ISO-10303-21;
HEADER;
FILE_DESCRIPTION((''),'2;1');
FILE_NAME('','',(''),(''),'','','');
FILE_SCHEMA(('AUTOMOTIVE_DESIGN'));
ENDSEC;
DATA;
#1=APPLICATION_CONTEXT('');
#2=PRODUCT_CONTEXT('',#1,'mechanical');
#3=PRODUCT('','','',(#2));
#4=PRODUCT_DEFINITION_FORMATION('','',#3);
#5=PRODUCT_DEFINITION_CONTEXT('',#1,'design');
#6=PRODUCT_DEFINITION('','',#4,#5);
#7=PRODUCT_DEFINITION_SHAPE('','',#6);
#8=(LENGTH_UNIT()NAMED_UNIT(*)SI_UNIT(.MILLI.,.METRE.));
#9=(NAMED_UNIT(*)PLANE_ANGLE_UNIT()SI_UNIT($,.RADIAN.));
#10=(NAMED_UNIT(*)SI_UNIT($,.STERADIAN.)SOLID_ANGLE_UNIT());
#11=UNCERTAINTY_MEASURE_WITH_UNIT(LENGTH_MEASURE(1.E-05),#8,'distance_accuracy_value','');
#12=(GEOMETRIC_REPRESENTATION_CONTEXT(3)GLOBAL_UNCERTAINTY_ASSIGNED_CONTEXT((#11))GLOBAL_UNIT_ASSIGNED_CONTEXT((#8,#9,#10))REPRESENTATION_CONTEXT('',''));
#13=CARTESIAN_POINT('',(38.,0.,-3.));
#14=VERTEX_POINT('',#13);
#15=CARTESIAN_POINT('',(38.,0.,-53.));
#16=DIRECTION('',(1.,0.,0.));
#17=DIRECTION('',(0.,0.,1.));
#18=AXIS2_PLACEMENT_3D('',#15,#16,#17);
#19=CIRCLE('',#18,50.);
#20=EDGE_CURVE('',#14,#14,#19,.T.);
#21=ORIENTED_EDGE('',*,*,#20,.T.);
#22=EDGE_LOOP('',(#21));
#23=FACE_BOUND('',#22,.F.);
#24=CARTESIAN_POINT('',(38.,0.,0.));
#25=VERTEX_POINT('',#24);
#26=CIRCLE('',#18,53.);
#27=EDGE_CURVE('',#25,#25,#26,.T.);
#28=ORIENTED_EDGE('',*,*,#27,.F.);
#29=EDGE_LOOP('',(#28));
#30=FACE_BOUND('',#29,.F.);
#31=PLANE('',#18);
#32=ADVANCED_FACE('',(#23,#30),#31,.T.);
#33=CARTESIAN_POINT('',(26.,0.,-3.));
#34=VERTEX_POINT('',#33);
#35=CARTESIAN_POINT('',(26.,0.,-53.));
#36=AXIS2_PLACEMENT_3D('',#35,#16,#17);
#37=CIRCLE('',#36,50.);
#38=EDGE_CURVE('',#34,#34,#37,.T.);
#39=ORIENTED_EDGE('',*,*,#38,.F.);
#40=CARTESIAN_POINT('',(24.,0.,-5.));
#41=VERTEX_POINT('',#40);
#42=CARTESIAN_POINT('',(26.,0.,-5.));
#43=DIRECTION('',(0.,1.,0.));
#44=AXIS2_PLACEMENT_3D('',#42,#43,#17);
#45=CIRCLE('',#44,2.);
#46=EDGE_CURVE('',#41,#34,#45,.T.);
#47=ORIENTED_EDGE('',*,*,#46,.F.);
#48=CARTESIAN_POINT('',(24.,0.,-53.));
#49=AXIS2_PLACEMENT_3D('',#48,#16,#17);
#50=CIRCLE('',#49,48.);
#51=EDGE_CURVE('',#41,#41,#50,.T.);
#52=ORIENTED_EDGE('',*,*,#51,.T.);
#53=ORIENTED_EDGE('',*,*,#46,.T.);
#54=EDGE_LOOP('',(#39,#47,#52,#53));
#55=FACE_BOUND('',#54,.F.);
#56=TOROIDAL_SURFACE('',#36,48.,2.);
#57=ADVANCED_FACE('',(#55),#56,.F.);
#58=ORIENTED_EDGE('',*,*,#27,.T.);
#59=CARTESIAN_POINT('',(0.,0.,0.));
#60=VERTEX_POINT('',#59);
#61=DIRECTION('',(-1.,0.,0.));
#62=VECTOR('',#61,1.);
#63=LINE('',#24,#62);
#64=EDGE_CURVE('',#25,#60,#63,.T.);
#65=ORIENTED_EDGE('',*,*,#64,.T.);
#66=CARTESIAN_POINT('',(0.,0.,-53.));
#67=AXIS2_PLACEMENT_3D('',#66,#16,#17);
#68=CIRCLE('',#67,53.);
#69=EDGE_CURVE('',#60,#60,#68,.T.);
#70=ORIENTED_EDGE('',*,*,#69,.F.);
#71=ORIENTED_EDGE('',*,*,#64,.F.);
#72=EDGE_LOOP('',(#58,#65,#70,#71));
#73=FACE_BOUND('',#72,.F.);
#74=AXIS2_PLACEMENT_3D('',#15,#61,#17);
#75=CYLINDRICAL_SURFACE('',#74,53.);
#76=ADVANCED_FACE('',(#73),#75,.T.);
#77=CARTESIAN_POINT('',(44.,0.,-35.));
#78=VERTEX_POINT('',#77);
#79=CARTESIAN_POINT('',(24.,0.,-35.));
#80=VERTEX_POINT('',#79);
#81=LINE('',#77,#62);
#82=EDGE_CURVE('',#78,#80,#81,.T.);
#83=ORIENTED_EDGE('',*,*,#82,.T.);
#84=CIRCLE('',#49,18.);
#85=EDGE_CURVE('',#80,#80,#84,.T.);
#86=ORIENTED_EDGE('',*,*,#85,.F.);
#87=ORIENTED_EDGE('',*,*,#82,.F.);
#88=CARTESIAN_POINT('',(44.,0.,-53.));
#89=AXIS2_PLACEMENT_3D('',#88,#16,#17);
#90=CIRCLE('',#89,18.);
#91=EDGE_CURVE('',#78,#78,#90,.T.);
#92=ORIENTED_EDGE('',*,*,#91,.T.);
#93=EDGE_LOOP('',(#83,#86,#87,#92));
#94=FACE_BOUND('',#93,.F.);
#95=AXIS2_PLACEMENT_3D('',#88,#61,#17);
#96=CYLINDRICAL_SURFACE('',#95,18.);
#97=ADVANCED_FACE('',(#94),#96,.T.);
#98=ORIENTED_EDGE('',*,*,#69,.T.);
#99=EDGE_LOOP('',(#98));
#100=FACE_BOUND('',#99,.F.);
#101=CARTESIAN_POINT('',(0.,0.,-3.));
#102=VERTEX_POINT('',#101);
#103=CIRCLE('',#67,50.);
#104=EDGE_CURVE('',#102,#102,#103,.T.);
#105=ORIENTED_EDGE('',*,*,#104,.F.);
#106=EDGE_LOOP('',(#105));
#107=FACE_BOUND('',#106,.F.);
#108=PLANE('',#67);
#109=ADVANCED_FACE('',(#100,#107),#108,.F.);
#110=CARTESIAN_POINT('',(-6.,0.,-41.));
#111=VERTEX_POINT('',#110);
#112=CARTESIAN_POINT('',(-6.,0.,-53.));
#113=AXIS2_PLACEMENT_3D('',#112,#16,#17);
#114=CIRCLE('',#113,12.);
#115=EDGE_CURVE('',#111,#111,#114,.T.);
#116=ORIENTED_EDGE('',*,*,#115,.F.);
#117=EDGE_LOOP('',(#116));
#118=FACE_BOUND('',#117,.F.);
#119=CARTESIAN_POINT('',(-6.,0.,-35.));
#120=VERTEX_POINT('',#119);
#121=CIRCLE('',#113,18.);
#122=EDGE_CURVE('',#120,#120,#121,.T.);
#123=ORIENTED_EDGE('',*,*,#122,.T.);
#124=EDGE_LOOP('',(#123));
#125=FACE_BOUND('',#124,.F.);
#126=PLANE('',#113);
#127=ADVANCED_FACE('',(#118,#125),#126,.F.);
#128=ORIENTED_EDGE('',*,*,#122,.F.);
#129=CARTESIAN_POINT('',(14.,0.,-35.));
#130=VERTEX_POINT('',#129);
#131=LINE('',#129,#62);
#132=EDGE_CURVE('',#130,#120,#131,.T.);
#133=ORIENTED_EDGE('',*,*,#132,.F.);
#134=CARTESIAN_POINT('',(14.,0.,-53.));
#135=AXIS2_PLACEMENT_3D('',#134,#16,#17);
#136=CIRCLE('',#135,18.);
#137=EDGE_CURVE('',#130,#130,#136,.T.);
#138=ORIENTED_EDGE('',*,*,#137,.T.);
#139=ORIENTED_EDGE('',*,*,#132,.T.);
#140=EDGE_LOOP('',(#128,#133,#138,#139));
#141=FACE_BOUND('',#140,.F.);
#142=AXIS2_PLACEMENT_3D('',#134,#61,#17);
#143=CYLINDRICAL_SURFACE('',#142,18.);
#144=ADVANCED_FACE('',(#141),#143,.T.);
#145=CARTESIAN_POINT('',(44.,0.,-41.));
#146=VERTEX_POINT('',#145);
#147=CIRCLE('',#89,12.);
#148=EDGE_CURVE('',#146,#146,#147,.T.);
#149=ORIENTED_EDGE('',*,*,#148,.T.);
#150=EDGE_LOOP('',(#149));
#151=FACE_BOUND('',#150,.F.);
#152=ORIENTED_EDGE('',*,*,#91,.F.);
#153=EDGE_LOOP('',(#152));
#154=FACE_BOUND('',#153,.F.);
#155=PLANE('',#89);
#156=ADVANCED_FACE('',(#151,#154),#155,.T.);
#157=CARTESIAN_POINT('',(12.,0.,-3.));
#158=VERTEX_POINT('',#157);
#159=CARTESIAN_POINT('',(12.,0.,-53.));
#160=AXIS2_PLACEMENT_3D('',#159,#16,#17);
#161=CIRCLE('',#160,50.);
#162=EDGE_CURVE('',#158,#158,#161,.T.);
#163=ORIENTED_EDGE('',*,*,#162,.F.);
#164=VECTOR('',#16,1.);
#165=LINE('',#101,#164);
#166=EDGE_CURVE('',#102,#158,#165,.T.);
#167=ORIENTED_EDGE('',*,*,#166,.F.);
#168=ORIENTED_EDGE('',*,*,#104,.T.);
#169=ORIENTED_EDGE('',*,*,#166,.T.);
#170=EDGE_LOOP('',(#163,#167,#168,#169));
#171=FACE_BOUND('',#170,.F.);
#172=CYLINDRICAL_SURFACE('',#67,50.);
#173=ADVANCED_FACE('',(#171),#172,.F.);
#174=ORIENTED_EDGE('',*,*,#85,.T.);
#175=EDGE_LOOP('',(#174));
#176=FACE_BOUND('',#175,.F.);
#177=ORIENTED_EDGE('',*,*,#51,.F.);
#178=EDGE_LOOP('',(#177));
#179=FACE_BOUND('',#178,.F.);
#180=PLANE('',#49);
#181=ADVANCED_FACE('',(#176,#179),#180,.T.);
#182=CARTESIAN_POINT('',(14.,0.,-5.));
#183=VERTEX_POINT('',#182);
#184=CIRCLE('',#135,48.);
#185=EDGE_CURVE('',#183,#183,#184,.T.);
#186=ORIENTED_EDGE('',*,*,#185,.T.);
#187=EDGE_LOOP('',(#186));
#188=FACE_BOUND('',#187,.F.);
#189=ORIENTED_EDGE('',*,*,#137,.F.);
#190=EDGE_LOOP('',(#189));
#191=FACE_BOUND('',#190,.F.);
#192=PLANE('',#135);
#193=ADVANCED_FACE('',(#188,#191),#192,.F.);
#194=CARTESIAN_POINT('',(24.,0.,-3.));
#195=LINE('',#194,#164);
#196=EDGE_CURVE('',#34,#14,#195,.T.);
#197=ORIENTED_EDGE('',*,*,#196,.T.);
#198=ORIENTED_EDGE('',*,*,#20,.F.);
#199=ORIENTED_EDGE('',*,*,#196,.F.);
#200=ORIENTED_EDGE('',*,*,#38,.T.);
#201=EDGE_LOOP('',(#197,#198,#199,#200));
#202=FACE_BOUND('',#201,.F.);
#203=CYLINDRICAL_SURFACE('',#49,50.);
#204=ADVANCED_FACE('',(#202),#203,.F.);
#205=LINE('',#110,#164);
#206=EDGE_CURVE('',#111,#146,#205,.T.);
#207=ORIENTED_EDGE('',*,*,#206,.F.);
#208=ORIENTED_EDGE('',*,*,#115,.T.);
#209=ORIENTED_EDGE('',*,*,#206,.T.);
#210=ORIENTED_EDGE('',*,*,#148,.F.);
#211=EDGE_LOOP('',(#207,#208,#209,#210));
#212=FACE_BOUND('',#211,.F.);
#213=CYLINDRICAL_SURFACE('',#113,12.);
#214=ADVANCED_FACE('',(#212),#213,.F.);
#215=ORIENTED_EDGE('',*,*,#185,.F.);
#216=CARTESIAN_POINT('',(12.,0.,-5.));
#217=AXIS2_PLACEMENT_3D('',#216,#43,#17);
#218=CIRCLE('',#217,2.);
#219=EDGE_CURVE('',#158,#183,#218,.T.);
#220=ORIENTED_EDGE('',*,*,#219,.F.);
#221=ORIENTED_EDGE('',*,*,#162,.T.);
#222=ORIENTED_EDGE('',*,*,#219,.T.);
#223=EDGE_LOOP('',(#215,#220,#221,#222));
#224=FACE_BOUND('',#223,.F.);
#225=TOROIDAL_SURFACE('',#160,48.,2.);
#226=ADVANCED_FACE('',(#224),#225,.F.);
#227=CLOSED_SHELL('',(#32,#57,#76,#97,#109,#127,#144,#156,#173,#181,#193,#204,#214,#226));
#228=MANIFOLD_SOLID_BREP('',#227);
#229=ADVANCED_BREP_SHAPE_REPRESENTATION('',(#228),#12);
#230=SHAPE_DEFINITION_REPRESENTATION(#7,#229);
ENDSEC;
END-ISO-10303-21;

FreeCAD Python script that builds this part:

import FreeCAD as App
import Part
import Sketcher
from FreeCAD import Vector


def edges_at(feature, points):
    """Names of the edges that pass closest to the given points."""
    edges = feature.Shape.Edges
    near = lambda p: min(range(len(edges)), key=lambda i: edges[i].distToShape(Part.Vertex(*p))[0])
    return sorted({f"Edge{near(p) + 1}" for p in points})


def add_polygon(sketch, points):
    """Adds a closed chain of lines whose ends are joined by coincident constraints."""
    first, n = sketch.GeometryCount, len(points)
    for a, b in zip(points, points[1:] + points[:1]):
        sketch.addGeometry(Part.LineSegment(App.Vector(*a, 0), App.Vector(*b, 0)), False)
    for i in range(n):
        sketch.addConstraint(Sketcher.Constraint("Coincident", first + i, 2, first + (i + 1) % n, 1))

doc = App.newDocument("Part")
body = doc.addObject("PartDesign::Body", "Body")

# Sketch on XZ plane
sketch1 = body.newObject("Sketcher::SketchObject", "Sketch")
sketch1.AttachmentSupport = (doc.getObject("XZ_Plane"), [""])
sketch1.MapMode = "FlatFace"
add_polygon(sketch1, [(38, 0), (0, 0), (0, -3), (14, -3), (14, -35), (-6, -35), (-6, -41), (44, -41), (44, -35), (24, -35), (24, -3), (38, -3)])  # lines 0-11
sketch1.addGeometry(Part.LineSegment(Vector(-6, -53, 0), Vector(44, -53, 0)), True)  # axis
sketch1.addConstraint([
    Sketcher.Constraint("Horizontal", 0),
    Sketcher.Constraint("Vertical", 1),
    Sketcher.Constraint("Horizontal", 2),
    Sketcher.Constraint("Vertical", 3),
    Sketcher.Constraint("Horizontal", 4),
    Sketcher.Constraint("Vertical", 5),
    Sketcher.Constraint("Horizontal", 6),
    Sketcher.Constraint("Vertical", 7),
    Sketcher.Constraint("Horizontal", 8),
    Sketcher.Constraint("Vertical", 9),
    Sketcher.Constraint("Horizontal", 10),
    Sketcher.Constraint("Vertical", 11),
    Sketcher.Constraint("Horizontal", 12),
    Sketcher.Constraint("Coincident", 0, 2, -1, 1),
    Sketcher.Constraint("Horizontal", 4, 2, 7, 2),
    Sketcher.Constraint("Horizontal", 2, 2, 9, 2),
    Sketcher.Constraint("Vertical", 5, 2, 12, 1),
    Sketcher.Constraint("Vertical", 7, 2, 12, 2),
    Sketcher.Constraint("Equal", 4, 8),
    Sketcher.Constraint("Equal", 2, 10),
    Sketcher.Constraint("DistanceX", 0, 2, 0, 1, 38.0),
    Sketcher.Constraint("DistanceX", 2, 1, 2, 2, 14.0),
    Sketcher.Constraint("DistanceX", 4, 2, 4, 1, 20.0),
    Sketcher.Constraint("DistanceY", 1, 2, 1, 1, 3.0),
    Sketcher.Constraint("DistanceY", 3, 2, 3, 1, 32.0),
    Sketcher.Constraint("DistanceY", 5, 2, 5, 1, 6.0),
    Sketcher.Constraint("DistanceY", 12, 1, -1, 1, 53.0),
])
revolution = body.newObject("PartDesign::Revolution", "Revolution")
revolution.Profile = sketch1
revolution.ReferenceAxis = (sketch1, ["Axis0"])
revolution.Angle = 360
doc.recompute()

fillet = body.newObject("PartDesign::Fillet", "Fillet")
fillet.Base = (revolution, edges_at(revolution, [(14, 0, -103), (24, 0, -103)]))
fillet.Radius = 2

doc.recompute()
